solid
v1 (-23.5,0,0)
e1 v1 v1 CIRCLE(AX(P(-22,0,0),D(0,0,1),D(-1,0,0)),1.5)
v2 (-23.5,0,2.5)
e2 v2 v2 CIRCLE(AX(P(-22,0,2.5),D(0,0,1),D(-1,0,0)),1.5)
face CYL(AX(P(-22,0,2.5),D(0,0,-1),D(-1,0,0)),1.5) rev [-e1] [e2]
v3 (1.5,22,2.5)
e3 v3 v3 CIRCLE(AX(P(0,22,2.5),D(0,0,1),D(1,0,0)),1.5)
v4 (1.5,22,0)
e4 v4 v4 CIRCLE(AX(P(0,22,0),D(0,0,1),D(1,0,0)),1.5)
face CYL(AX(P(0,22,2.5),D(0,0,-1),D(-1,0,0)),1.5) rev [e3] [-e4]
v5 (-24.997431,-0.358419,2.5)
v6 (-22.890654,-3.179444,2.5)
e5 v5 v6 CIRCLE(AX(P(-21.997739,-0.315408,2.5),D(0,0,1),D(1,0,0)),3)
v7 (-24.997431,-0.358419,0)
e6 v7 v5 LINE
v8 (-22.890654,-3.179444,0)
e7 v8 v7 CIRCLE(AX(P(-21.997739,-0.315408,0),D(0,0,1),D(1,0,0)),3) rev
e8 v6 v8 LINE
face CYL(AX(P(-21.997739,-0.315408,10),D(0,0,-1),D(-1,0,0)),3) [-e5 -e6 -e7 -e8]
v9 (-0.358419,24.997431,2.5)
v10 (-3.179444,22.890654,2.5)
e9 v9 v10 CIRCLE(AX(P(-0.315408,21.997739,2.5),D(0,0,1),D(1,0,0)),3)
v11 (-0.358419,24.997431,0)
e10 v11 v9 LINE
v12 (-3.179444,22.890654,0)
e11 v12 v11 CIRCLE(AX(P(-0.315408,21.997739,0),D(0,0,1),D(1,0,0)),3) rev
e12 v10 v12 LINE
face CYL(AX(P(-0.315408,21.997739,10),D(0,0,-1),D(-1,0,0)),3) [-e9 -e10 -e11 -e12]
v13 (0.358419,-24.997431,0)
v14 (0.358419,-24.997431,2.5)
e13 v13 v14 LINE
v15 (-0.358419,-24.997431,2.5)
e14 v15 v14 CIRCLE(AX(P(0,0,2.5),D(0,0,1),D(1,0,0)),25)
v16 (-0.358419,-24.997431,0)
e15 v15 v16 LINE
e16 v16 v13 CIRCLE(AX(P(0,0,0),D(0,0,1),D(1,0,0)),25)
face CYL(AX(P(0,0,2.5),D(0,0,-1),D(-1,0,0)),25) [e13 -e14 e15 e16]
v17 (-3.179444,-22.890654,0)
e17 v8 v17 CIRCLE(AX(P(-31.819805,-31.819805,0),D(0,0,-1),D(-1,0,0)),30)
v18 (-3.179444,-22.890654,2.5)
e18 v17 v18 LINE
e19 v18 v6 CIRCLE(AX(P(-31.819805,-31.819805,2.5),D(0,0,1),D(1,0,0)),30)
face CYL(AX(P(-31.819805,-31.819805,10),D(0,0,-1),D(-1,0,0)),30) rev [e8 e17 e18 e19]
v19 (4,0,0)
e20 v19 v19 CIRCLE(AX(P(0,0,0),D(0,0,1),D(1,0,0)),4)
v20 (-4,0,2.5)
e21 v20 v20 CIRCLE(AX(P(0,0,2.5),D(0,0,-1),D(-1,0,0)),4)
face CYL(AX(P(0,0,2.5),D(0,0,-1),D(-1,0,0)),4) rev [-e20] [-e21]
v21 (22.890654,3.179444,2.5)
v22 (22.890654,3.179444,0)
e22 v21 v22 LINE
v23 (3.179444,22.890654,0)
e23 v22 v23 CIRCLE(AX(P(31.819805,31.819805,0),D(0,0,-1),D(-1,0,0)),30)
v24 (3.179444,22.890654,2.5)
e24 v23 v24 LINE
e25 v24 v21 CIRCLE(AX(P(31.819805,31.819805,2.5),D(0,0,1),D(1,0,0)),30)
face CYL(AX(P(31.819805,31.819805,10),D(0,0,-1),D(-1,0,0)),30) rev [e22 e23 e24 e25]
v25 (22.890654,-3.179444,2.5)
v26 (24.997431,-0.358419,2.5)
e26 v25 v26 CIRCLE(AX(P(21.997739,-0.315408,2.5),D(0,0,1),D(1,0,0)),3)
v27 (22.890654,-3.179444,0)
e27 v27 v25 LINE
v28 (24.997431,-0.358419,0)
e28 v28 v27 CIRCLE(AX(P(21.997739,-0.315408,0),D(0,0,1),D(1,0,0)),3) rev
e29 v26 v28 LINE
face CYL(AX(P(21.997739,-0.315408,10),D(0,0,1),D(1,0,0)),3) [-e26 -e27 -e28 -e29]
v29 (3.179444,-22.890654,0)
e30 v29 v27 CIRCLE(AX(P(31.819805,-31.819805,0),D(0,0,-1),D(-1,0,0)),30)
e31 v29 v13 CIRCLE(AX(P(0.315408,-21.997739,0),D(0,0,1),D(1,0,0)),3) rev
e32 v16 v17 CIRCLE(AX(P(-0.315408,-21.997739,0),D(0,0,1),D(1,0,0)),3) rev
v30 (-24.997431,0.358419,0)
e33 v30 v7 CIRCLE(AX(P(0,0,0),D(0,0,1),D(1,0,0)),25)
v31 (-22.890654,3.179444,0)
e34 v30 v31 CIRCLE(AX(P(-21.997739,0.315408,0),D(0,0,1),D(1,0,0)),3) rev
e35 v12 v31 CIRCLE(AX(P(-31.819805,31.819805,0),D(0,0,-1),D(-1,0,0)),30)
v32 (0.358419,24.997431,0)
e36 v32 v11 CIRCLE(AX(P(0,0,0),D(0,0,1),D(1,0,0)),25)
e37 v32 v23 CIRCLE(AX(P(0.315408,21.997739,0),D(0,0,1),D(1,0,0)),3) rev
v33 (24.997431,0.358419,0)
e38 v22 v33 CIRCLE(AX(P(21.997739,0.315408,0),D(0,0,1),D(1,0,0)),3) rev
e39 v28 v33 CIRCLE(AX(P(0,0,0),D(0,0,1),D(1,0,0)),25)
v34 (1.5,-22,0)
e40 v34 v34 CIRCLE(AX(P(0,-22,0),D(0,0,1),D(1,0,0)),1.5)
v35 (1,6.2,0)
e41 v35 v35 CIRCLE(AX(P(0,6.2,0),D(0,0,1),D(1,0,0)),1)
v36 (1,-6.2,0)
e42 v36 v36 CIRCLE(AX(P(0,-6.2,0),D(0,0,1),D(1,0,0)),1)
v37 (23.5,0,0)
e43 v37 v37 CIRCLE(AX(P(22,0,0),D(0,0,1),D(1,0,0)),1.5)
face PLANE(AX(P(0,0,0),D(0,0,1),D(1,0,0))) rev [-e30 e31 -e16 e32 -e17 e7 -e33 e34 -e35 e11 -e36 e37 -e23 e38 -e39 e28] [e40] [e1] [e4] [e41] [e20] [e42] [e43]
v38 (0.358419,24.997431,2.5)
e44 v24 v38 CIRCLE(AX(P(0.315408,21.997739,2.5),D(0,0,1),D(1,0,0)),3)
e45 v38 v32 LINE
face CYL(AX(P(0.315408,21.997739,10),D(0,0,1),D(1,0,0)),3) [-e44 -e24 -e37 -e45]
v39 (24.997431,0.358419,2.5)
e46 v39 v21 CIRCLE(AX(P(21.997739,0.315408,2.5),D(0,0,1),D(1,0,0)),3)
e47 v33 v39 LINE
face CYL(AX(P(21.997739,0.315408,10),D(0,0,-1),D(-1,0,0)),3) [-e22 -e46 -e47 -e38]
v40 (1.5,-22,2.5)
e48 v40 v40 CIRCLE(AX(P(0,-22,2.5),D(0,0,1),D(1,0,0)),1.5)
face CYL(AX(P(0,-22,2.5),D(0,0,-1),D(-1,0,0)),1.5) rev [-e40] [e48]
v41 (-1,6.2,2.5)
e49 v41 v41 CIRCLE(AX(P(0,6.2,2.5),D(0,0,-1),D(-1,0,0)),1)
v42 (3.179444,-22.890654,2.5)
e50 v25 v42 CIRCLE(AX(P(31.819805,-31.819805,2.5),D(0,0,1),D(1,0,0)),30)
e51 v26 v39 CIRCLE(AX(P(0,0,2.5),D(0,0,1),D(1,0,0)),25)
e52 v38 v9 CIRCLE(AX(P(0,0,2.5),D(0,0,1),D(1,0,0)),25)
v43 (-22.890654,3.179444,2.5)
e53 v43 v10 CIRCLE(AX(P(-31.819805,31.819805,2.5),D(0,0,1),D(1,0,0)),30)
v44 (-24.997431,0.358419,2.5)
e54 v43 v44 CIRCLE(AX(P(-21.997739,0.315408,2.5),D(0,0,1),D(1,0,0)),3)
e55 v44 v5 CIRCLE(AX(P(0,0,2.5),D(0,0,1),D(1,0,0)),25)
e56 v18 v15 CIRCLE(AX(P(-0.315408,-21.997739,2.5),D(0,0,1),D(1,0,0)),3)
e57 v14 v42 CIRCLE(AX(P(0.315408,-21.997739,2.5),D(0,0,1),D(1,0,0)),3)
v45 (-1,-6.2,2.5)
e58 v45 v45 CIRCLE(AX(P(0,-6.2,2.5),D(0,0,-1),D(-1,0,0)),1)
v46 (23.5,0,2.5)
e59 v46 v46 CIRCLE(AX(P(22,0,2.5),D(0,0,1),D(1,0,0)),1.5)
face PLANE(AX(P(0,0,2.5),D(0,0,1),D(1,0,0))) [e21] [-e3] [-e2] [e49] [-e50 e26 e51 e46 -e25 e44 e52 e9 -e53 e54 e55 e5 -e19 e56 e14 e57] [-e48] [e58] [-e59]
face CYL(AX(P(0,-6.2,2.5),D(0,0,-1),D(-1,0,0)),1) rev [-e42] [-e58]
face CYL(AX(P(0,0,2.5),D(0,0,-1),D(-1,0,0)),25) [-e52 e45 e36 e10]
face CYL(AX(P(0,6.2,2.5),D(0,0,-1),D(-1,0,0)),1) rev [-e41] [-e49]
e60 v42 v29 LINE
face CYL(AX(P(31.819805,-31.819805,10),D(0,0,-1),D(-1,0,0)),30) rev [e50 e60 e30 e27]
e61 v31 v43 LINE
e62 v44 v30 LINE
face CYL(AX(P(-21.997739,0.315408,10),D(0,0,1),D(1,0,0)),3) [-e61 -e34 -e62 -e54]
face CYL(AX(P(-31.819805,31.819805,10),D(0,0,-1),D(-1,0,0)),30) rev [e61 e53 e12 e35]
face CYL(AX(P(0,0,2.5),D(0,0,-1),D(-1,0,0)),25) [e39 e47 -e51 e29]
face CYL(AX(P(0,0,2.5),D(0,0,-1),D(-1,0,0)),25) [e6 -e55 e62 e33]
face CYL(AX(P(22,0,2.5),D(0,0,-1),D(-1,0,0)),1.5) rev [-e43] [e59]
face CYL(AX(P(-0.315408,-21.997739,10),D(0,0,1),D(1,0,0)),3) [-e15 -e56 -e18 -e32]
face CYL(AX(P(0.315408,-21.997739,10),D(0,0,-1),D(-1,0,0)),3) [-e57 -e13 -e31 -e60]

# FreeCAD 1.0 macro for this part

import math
import FreeCAD as App
import Part
import Sketcher


def edges_at(feature, points):
    """Names of the edges that pass closest to the given points."""
    edges = feature.Shape.Edges
    near = lambda p: min(range(len(edges)), key=lambda i: edges[i].distToShape(Part.Vertex(*p))[0])
    return sorted({f"Edge{near(p) + 1}" for p in points})

doc = App.newDocument("Part")
body = doc.addObject("PartDesign::Body", "Body")

# Sketch on XY plane
sketch1 = body.newObject("Sketcher::SketchObject", "Sketch")
sketch1.AttachmentSupport = (doc.getObject("XY_Plane"), [""])
sketch1.MapMode = "FlatFace"
sketch1.addGeometry(Part.Circle(App.Vector(0, 0, 0), App.Vector(0, 0, 1), 25), False)
sketch1.addGeometry(Part.Circle(App.Vector(0, -22, 0), App.Vector(0, 0, 1), 1.5), False)
sketch1.addGeometry(Part.Circle(App.Vector(-22, 0, 0), App.Vector(0, 0, 1), 1.5), False)
sketch1.addGeometry(Part.Circle(App.Vector(22, 0, 0), App.Vector(0, 0, 1), 1.5), False)
sketch1.addGeometry(Part.Circle(App.Vector(0, 22, 0), App.Vector(0, 0, 1), 1.5), False)
sketch1.addConstraint(Sketcher.Constraint("Coincident", 0, 3, -1, 1))
sketch1.addConstraint(Sketcher.Constraint("Equal", 1, 2))
sketch1.addConstraint(Sketcher.Constraint("Equal", 2, 3))
sketch1.addConstraint(Sketcher.Constraint("Equal", 3, 4))
sketch1.addConstraint(Sketcher.Constraint("Symmetric", 2, 3, 3, 3, -1, 1))
sketch1.addConstraint(Sketcher.Constraint("Symmetric", 1, 3, 4, 3, -1, 1))
sketch1.addConstraint(Sketcher.Constraint("PointOnObject", 1, 3, -2))
sketch1.addConstraint(Sketcher.Constraint("PointOnObject", 2, 3, -1))
sketch1.addConstraint(Sketcher.Constraint("Diameter", 0, 50.0))
sketch1.addConstraint(Sketcher.Constraint("Diameter", 1, 3.0))
sketch1.addConstraint(Sketcher.Constraint("DistanceY", 1, 3, -1, 1, 22.0))
sketch1.addConstraint(Sketcher.Constraint("DistanceX", 2, 3, -1, 1, 22.0))
pad1 = body.newObject("PartDesign::Pad", "Pad")
pad1.Profile = sketch1
pad1.Length = 2.5

# Sketch on XY plane
sketch2 = body.newObject("Sketcher::SketchObject", "Sketch001")
sketch2.AttachmentSupport = (doc.getObject("XY_Plane"), [""])
sketch2.MapMode = "FlatFace"
sketch2.addGeometry(Part.Circle(App.Vector(0, 6.2, 0), App.Vector(0, 0, 1), 1), False)
sketch2.addGeometry(Part.Circle(App.Vector(0, 0, 0), App.Vector(0, 0, 1), 4), False)
sketch2.addGeometry(Part.Circle(App.Vector(0, -6.2, 0), App.Vector(0, 0, 1), 1), False)
sketch2.addConstraint(Sketcher.Constraint("Coincident", 1, 3, -1, 1))
sketch2.addConstraint(Sketcher.Constraint("Equal", 0, 2))
sketch2.addConstraint(Sketcher.Constraint("Symmetric", 0, 3, 2, 3, -1, 1))
sketch2.addConstraint(Sketcher.Constraint("PointOnObject", 0, 3, -2))
sketch2.addConstraint(Sketcher.Constraint("Diameter", 0, 2.0))
sketch2.addConstraint(Sketcher.Constraint("Diameter", 1, 8.0))
sketch2.addConstraint(Sketcher.Constraint("DistanceY", -1, 1, 0, 3, 6.2))
pocket1 = body.newObject("PartDesign::Pocket", "Pocket")
pocket1.Profile = sketch2
pocket1.Type = "ThroughAll"
pocket1.Midplane = True

# Sketch on XY plane
sketch3 = body.newObject("Sketcher::SketchObject", "Sketch002")
sketch3.AttachmentSupport = (doc.getObject("XY_Plane"), [""])
sketch3.MapMode = "FlatFace"
sketch3.addGeometry(Part.ArcOfCircle(Part.Circle(App.Vector(0, 0, 0), App.Vector(0, 0, 1), 25), math.radians(6), math.radians(84)), False)
sketch3.addGeometry(Part.ArcOfCircle(Part.Circle(App.Vector(32, 32, 0), App.Vector(0, 0, 1), 30), math.radians(-167), math.radians(-103)), False)
sketch3.addGeometry(Part.ArcOfCircle(Part.Circle(App.Vector(32, -32, 0), App.Vector(0, 0, 1), 30), math.radians(103), math.radians(167)), False)
sketch3.addGeometry(Part.ArcOfCircle(Part.Circle(App.Vector(0, 0, 0), App.Vector(0, 0, 1), 25), math.radians(-84), math.radians(-6)), False)
sketch3.addGeometry(Part.ArcOfCircle(Part.Circle(App.Vector(-32, -32, 0), App.Vector(0, 0, 1), 30), math.radians(13), math.radians(77)), False)
sketch3.addGeometry(Part.ArcOfCircle(Part.Circle(App.Vector(0, 0, 0), App.Vector(0, 0, 1), 25), math.radians(-174), math.radians(-96)), False)
sketch3.addGeometry(Part.ArcOfCircle(Part.Circle(App.Vector(0, 0, 0), App.Vector(0, 0, 1), 25), math.radians(96), math.radians(174)), False)
sketch3.addGeometry(Part.ArcOfCircle(Part.Circle(App.Vector(-32, 32, 0), App.Vector(0, 0, 1), 30), math.radians(-77), math.radians(-13)), False)
sketch3.addConstraint(Sketcher.Constraint("Coincident", 0, 1, 1, 2))
sketch3.addConstraint(Sketcher.Constraint("Coincident", 1, 1, 0, 2))
sketch3.addConstraint(Sketcher.Constraint("Coincident", 2, 1, 3, 2))
sketch3.addConstraint(Sketcher.Constraint("Coincident", 3, 1, 2, 2))
sketch3.addConstraint(Sketcher.Constraint("Coincident", 4, 1, 5, 2))
sketch3.addConstraint(Sketcher.Constraint("Coincident", 5, 1, 4, 2))
sketch3.addConstraint(Sketcher.Constraint("Coincident", 6, 1, 7, 2))
sketch3.addConstraint(Sketcher.Constraint("Coincident", 7, 1, 6, 2))
sketch3.addConstraint(Sketcher.Constraint("Coincident", 0, 3, -1, 1))
sketch3.addConstraint(Sketcher.Constraint("Coincident", 3, 3, -1, 1))
sketch3.addConstraint(Sketcher.Constraint("Coincident", 5, 3, -1, 1))
sketch3.addConstraint(Sketcher.Constraint("Coincident", 6, 3, -1, 1))
sketch3.addConstraint(Sketcher.Constraint("Equal", 1, 2))
sketch3.addConstraint(Sketcher.Constraint("Equal", 0, 3))
sketch3.addConstraint(Sketcher.Constraint("Equal", 2, 4))
sketch3.addConstraint(Sketcher.Constraint("Equal", 3, 5))
sketch3.addConstraint(Sketcher.Constraint("Equal", 5, 6))
sketch3.addConstraint(Sketcher.Constraint("Equal", 4, 7))
sketch3.addConstraint(Sketcher.Constraint("Symmetric", 1, 3, 4, 3, -1, 1))
sketch3.addConstraint(Sketcher.Constraint("Symmetric", 2, 3, 7, 3, -1, 1))
sketch3.addConstraint(Sketcher.Constraint("Symmetric", 2, 3, 4, 3, -2))
sketch3.addConstraint(Sketcher.Constraint("Radius", 0, 25.0))
sketch3.addConstraint(Sketcher.Constraint("Radius", 1, 30.0))
sketch3.addConstraint(Sketcher.Constraint("DistanceX", -1, 1, 0, 1, 24.86041))
sketch3.addConstraint(Sketcher.Constraint("DistanceY", 3, 1, -1, 1, 24.86041))
pocket2 = body.newObject("PartDesign::Pocket", "Pocket001")
pocket2.Profile = sketch3
pocket2.Length = 10
pocket2.Reversed = True
doc.recompute()

fillet = body.newObject("PartDesign::Fillet", "Fillet")
fillet.Base = (pocket2, edges_at(pocket2, [
    (2.638, 24.86, 1.25),
    (24.86, 2.638, 1.25),
    (24.86, -2.638, 1.25),
    (2.638, -24.86, 1.25),
    (-2.638, -24.86, 1.25),
    (-24.86, -2.638, 1.25),
    (-24.86, 2.638, 1.25),
    (-2.638, 24.86, 1.25),
]))
fillet.Radius = 3

doc.recompute()
